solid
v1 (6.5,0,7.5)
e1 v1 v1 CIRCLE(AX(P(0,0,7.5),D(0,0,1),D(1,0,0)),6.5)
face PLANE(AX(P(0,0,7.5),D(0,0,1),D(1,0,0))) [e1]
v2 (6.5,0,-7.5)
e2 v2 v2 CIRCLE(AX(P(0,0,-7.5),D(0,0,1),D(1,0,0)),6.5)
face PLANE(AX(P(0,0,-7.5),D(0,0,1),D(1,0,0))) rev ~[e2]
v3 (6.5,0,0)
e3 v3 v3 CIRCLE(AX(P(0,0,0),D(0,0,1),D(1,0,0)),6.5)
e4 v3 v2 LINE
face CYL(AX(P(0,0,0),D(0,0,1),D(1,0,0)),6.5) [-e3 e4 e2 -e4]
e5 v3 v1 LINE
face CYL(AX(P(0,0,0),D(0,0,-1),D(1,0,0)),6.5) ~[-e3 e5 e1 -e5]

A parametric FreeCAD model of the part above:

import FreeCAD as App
import Part
import Sketcher
from FreeCAD import Vector

doc = App.newDocument("Part")
body = doc.addObject("PartDesign::Body", "Body")

# Sketch on XY plane
sketch1 = body.newObject("Sketcher::SketchObject", "Sketch")
sketch1.AttachmentSupport = (doc.getObject("XY_Plane"), [""])
sketch1.MapMode = "FlatFace"
sketch1.addGeometry(Part.Circle(Vector(0, 0, 0), Vector(0, 0, 1), 6.5), False)
sketch1.addConstraint([
    Sketcher.Constraint("Coincident", 0, 3, -1, 1),
    Sketcher.Constraint("Diameter", 0, 13.0),
])
pad1 = body.newObject("PartDesign::Pad", "Pad")
pad1.Profile = sketch1
pad1.Length = 15
pad1.Midplane = True

doc.recompute()
